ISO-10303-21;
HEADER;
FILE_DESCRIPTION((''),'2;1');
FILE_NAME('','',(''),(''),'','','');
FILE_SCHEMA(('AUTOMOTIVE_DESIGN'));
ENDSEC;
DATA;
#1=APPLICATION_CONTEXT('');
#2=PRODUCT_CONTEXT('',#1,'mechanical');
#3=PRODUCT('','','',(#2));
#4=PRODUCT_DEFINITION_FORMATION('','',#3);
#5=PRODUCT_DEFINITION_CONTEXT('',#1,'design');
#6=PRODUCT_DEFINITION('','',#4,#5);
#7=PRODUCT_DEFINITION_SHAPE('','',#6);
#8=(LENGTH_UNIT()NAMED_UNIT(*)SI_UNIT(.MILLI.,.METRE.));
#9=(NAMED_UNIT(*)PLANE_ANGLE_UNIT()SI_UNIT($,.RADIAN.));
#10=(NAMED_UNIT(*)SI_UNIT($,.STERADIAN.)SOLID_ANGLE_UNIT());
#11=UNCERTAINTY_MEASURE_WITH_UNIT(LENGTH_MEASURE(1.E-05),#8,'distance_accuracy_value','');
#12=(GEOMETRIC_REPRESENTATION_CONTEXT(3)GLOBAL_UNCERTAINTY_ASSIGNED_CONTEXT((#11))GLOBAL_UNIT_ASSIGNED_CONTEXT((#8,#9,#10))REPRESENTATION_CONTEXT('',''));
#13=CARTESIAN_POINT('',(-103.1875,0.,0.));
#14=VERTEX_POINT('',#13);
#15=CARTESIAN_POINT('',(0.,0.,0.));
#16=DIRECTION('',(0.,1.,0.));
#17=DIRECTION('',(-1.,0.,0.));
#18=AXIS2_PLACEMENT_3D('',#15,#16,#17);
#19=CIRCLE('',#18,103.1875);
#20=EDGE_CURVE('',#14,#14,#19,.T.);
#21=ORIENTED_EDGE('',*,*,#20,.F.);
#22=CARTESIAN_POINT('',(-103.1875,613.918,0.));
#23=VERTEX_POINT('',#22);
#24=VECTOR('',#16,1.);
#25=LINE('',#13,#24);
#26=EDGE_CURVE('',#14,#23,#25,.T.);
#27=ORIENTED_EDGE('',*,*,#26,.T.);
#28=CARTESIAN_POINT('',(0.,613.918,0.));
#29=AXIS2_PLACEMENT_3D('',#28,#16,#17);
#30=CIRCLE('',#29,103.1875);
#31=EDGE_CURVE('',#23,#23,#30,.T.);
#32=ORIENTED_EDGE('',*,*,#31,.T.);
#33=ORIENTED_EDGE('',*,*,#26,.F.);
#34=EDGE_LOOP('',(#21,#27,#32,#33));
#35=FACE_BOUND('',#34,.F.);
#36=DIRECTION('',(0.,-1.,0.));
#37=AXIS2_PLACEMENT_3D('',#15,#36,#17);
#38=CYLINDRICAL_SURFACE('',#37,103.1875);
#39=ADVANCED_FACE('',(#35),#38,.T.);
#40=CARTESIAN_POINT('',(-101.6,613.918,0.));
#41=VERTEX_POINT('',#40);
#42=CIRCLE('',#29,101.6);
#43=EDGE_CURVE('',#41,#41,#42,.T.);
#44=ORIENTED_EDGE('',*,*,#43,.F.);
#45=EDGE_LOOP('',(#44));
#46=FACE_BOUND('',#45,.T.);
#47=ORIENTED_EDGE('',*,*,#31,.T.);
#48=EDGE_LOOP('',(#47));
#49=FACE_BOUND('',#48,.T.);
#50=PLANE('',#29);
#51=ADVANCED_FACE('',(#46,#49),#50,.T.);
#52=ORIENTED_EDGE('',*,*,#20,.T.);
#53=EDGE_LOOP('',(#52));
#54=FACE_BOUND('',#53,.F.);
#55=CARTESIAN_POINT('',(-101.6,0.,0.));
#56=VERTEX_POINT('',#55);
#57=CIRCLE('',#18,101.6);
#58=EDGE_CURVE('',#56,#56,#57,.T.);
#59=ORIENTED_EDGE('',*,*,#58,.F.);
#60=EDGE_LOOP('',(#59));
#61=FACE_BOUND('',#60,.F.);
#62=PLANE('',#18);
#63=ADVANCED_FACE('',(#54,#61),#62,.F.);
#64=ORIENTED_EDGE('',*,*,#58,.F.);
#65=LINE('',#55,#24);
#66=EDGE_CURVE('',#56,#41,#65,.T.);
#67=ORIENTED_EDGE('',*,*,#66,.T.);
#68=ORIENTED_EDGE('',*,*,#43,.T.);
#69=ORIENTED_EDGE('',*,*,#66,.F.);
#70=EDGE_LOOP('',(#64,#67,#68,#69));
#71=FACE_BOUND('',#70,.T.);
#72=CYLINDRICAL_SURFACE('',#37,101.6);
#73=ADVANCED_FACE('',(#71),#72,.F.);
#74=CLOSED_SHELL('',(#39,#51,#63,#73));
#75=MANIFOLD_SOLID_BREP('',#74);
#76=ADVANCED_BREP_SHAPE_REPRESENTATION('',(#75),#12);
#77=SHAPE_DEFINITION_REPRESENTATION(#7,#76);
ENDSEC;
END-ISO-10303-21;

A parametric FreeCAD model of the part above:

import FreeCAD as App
import Part
import Sketcher

V = App.Vector
Q = App.Units.Quantity

doc = App.newDocument("Part")
body = doc.addObject("PartDesign::Body", "Body")

sketch1 = doc.addObject("Sketcher::SketchObject", "Sketch")
body.addObject(sketch1)
sketch1.AttachmentSupport = (doc.XZ_Plane, [""])
sketch1.MapMode = "FlatFace"
sketch1.addGeometry(Part.Circle(V(0, 0, 0), V(0, 0, 1), 103.1875), False)
sketch1.addGeometry(Part.Circle(V(0, 0, 0), V(0, 0, 1), 101.6), False)
sketch1.addConstraint(Sketcher.Constraint("Coincident", 0, 3, -1, 1))
sketch1.addConstraint(Sketcher.Constraint("Coincident", 1, 3, -1, 1))
sketch1.addConstraint(Sketcher.Constraint("Diameter", 1, Q("8 in")))
sketch1.addConstraint(Sketcher.Constraint("Diameter", 0, Q("8.125 in")))
pad1 = doc.addObject("PartDesign::Pad", "Pad")
body.addObject(pad1)
pad1.Profile = sketch1
pad1.Length = Q("24.17 in")
pad1.Reversed = True

doc.recompute()
